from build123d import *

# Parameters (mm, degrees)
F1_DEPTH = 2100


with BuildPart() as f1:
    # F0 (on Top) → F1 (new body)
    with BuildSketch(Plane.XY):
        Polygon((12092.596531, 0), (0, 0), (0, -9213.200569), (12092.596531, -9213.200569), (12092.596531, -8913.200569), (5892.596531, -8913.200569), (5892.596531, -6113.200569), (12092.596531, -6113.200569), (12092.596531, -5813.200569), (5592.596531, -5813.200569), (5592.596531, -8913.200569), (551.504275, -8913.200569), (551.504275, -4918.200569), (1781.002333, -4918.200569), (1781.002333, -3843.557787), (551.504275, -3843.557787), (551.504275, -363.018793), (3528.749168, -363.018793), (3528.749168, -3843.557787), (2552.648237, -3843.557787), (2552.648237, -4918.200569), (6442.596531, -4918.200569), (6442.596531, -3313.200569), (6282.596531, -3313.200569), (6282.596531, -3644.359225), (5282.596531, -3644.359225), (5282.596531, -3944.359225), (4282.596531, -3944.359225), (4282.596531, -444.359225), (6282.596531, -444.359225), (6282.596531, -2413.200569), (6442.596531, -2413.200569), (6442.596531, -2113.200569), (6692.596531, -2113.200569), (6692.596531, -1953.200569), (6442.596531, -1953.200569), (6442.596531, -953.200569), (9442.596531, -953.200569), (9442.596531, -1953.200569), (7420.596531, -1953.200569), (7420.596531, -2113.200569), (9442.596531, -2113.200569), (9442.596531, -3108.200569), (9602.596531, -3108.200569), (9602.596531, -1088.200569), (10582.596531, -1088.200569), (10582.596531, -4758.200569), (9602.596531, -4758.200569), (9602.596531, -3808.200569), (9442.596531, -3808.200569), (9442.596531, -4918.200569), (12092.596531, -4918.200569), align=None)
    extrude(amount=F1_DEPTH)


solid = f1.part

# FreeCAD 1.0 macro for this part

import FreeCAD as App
import Part
import Sketcher
from FreeCAD import Vector
Q = App.Units.Quantity


def add_polygon(sketch, points):
    """Adds a closed chain of lines whose ends are joined by coincident constraints."""
    first, n = sketch.GeometryCount, len(points)
    for a, b in zip(points, points[1:] + points[:1]):
        sketch.addGeometry(Part.LineSegment(App.Vector(*a, 0), App.Vector(*b, 0)), False)
    for i in range(n):
        sketch.addConstraint(Sketcher.Constraint("Coincident", first + i, 2, first + (i + 1) % n, 1))

doc = App.newDocument("Part")
params = doc.addObject("Spreadsheet::Sheet", "Params")
for row, (alias, value) in enumerate([
    ("sketch1_width", "6200 mm"),
    ("sketch1_width2", "6500 mm"),
    ("sketch1_width3", "160 mm"),
    ("sketch1_width4", "1000 mm"),
    ("sketch1_width5", "250 mm"),
    ("pad1_length", "2100 mm"),
], start=1):
    params.set(f"A{row}", alias)
    params.set(f"B{row}", "=" + value)
    params.setAlias(f"B{row}", alias)

body = doc.addObject("PartDesign::Body", "Body")

sketch1 = body.newObject("Sketcher::SketchObject", "Sketch")
sketch1.AttachmentSupport = (doc.getObject("XY_Plane"), [""])
sketch1.MapMode = "FlatFace"
add_polygon(sketch1, [(12093, 0), (0, 0), (0, -9213), (12093, -9213), (12093, -8913), (5893, -8913), (5893, -6113), (12093, -6113), (12093, -5813), (5593, -5813), (5593, -8913), (552, -8913), (552, -4918), (1781, -4918), (1781, -3844), (552, -3844), (552, -363), (3529, -363), (3529, -3844), (2553, -3844), (2553, -4918), (6443, -4918), (6443, -3313), (6283, -3313), (6283, -3644), (5283, -3644), (5283, -3944), (4283, -3944), (4283, -444), (6283, -444), (6283, -2413), (6443, -2413), (6443, -2113), (6693, -2113), (6693, -1953), (6443, -1953), (6443, -953), (9443, -953), (9443, -1953), (7421, -1953), (7421, -2113), (9443, -2113), (9443, -3108), (9603, -3108), (9603, -1088), (10583, -1088), (10583, -4758), (9603, -4758), (9603, -3808), (9443, -3808), (9443, -4918), (12093, -4918)])
sketch1.addConstraint(Sketcher.Constraint("Horizontal", 0))
sketch1.addConstraint(Sketcher.Constraint("Vertical", 1))
sketch1.addConstraint(Sketcher.Constraint("Horizontal", 2))
sketch1.addConstraint(Sketcher.Constraint("Vertical", 3))
sketch1.addConstraint(Sketcher.Constraint("Horizontal", 4))
sketch1.addConstraint(Sketcher.Constraint("Vertical", 5))
sketch1.addConstraint(Sketcher.Constraint("Horizontal", 6))
sketch1.addConstraint(Sketcher.Constraint("Vertical", 7))
sketch1.addConstraint(Sketcher.Constraint("Horizontal", 8))
sketch1.addConstraint(Sketcher.Constraint("Vertical", 9))
sketch1.addConstraint(Sketcher.Constraint("Horizontal", 10))
sketch1.addConstraint(Sketcher.Constraint("Vertical", 11))
sketch1.addConstraint(Sketcher.Constraint("Horizontal", 12))
sketch1.addConstraint(Sketcher.Constraint("Vertical", 13))
sketch1.addConstraint(Sketcher.Constraint("Horizontal", 14))
sketch1.addConstraint(Sketcher.Constraint("Vertical", 15))
sketch1.addConstraint(Sketcher.Constraint("Horizontal", 16))
sketch1.addConstraint(Sketcher.Constraint("Vertical", 17))
sketch1.addConstraint(Sketcher.Constraint("Horizontal", 18))
sketch1.addConstraint(Sketcher.Constraint("Vertical", 19))
sketch1.addConstraint(Sketcher.Constraint("Horizontal", 20))
sketch1.addConstraint(Sketcher.Constraint("Vertical", 21))
sketch1.addConstraint(Sketcher.Constraint("Horizontal", 22))
sketch1.addConstraint(Sketcher.Constraint("Vertical", 23))
sketch1.addConstraint(Sketcher.Constraint("Horizontal", 24))
sketch1.addConstraint(Sketcher.Constraint("Vertical", 25))
sketch1.addConstraint(Sketcher.Constraint("Horizontal", 26))
sketch1.addConstraint(Sketcher.Constraint("Vertical", 27))
sketch1.addConstraint(Sketcher.Constraint("Horizontal", 28))
sketch1.addConstraint(Sketcher.Constraint("Vertical", 29))
sketch1.addConstraint(Sketcher.Constraint("Horizontal", 30))
sketch1.addConstraint(Sketcher.Constraint("Vertical", 31))
sketch1.addConstraint(Sketcher.Constraint("Horizontal", 32))
sketch1.addConstraint(Sketcher.Constraint("Vertical", 33))
sketch1.addConstraint(Sketcher.Constraint("Horizontal", 34))
sketch1.addConstraint(Sketcher.Constraint("Vertical", 35))
sketch1.addConstraint(Sketcher.Constraint("Horizontal", 36))
sketch1.addConstraint(Sketcher.Constraint("Vertical", 37))
sketch1.addConstraint(Sketcher.Constraint("Horizontal", 38))
sketch1.addConstraint(Sketcher.Constraint("Vertical", 39))
sketch1.addConstraint(Sketcher.Constraint("Horizontal", 40))
sketch1.addConstraint(Sketcher.Constraint("Vertical", 41))
sketch1.addConstraint(Sketcher.Constraint("Horizontal", 42))
sketch1.addConstraint(Sketcher.Constraint("Vertical", 43))
sketch1.addConstraint(Sketcher.Constraint("Horizontal", 44))
sketch1.addConstraint(Sketcher.Constraint("Vertical", 45))
sketch1.addConstraint(Sketcher.Constraint("Horizontal", 46))
sketch1.addConstraint(Sketcher.Constraint("Vertical", 47))
sketch1.addConstraint(Sketcher.Constraint("Horizontal", 48))
sketch1.addConstraint(Sketcher.Constraint("Vertical", 49))
sketch1.addConstraint(Sketcher.Constraint("Horizontal", 50))
sketch1.addConstraint(Sketcher.Constraint("Vertical", 51))
sketch1.addConstraint(Sketcher.Constraint("Coincident", 0, 2, -1, 1))
sketch1.addConstraint(Sketcher.Constraint("Horizontal", 4, 2, 9, 2))
sketch1.addConstraint(Sketcher.Constraint("Horizontal", 14, 2, 17, 2))
sketch1.addConstraint(Sketcher.Constraint("Horizontal", 12, 2, 19, 2))
sketch1.addConstraint(Sketcher.Constraint("Horizontal", 34, 2, 37, 2))
sketch1.addConstraint(Sketcher.Constraint("Horizontal", 32, 2, 39, 2))
sketch1.addConstraint(Sketcher.Constraint("Horizontal", 20, 2, 49, 2))
sketch1.addConstraint(Sketcher.Constraint("Vertical", 3, 2, 6, 2))
sketch1.addConstraint(Sketcher.Constraint("Vertical", 11, 2, 14, 2))
sketch1.addConstraint(Sketcher.Constraint("Vertical", 23, 2, 28, 2))
sketch1.addConstraint(Sketcher.Constraint("Vertical", 21, 2, 30, 2))
sketch1.addConstraint(Sketcher.Constraint("Vertical", 31, 2, 34, 2))
sketch1.addConstraint(Sketcher.Constraint("Vertical", 37, 2, 40, 2))
sketch1.addConstraint(Sketcher.Constraint("Vertical", 43, 2, 46, 2))
sketch1.addConstraint(Sketcher.Constraint("Vertical", 41, 2, 48, 2))
sketch1.addConstraint(Sketcher.Constraint("Vertical", 7, 2, 50, 2))
sketch1.addConstraint(Sketcher.Constraint("Equal", 24, 26))
sketch1.addConstraint(Sketcher.Constraint("Equal", 30, 42))
sketch1.addConstraint(Sketcher.Constraint("Equal", 3, 7))
sketch1.addConstraint(Sketcher.Constraint("Equal", 7, 25))
sketch1.addConstraint(Sketcher.Constraint("Equal", 25, 31))
sketch1.addConstraint(Sketcher.Constraint("Equal", 48, 33))
sketch1.addConstraint(Sketcher.Constraint("Equal", 26, 35))
sketch1.addConstraint(Sketcher.Constraint("DistanceX", 4, 2, 4, 1, Q("6200 mm")))
sketch1.addConstraint(Sketcher.Constraint("DistanceX", 8, 2, 8, 1, Q("6500 mm")))
sketch1.addConstraint(Sketcher.Constraint("DistanceX", 22, 2, 22, 1, Q("160 mm")))
sketch1.addConstraint(Sketcher.Constraint("DistanceX", 24, 2, 24, 1, Q("1000 mm")))
sketch1.addConstraint(Sketcher.Constraint("DistanceX", 32, 1, 32, 2, Q("250 mm")))
sketch1.addConstraint(Sketcher.Constraint("DistanceX", 36, 1, 36, 2, Q("3000 mm")))
sketch1.addConstraint(Sketcher.Constraint("DistanceX", 38, 2, 38, 1, Q("2022 mm")))
sketch1.addConstraint(Sketcher.Constraint("DistanceX", 44, 1, 44, 2, Q("980 mm")))
sketch1.addConstraint(Sketcher.Constraint("DistanceX", 50, 1, 50, 2, Q("2650 mm")))
sketch1.addConstraint(Sketcher.Constraint("DistanceY", 3, 1, 3, 2, Q("300 mm")))
sketch1.addConstraint(Sketcher.Constraint("DistanceY", 5, 1, 5, 2, Q("2800 mm")))
sketch1.addConstraint(Sketcher.Constraint("DistanceY", 11, 1, 11, 2, Q("3995 mm")))
sketch1.addConstraint(Sketcher.Constraint("DistanceY", 21, 1, 21, 2, Q("1605 mm")))
sketch1.addConstraint(Sketcher.Constraint("DistanceY", 27, 1, 27, 2, Q("3500 mm")))
sketch1.addConstraint(Sketcher.Constraint("DistanceY", 41, 2, 41, 1, Q("995 mm")))
sketch1.addConstraint(Sketcher.Constraint("DistanceY", 43, 1, 43, 2, Q("2020 mm")))
sketch1.addConstraint(Sketcher.Constraint("DistanceY", 45, 2, 45, 1, Q("3670 mm")))
sketch1.addConstraint(Sketcher.Constraint("DistanceY", 47, 1, 47, 2, Q("950 mm")))
sketch1.addConstraint(Sketcher.Constraint("DistanceY", 49, 2, 49, 1, Q("1110 mm")))
sketch1.addConstraint(Sketcher.Constraint("DistanceX", 0, 2, 0, 1, Q("12092.596531 mm")))
sketch1.addConstraint(Sketcher.Constraint("DistanceX", 12, 1, 12, 2, Q("1229.498058 mm")))
sketch1.addConstraint(Sketcher.Constraint("DistanceX", 18, 2, 18, 1, Q("976.100931 mm")))
sketch1.addConstraint(Sketcher.Constraint("DistanceY", 1, 2, 1, 1, Q("9213.200569 mm")))
sketch1.addConstraint(Sketcher.Constraint("DistanceY", 13, 1, 13, 2, Q("1074.642782 mm")))
sketch1.addConstraint(Sketcher.Constraint("DistanceX", 12, 2, 8, 2, Q("3811.594198 mm")))
sketch1.addConstraint(Sketcher.Constraint("DistanceX", 16, 1, 16, 2, Q("2977.244893 mm")))
sketch1.addConstraint(Sketcher.Constraint("DistanceY", 15, 1, 15, 2, Q("3480.538994 mm")))
sketch1.addConstraint(Sketcher.Constraint("DistanceY", 23, 2, 23, 1, Q("331.158656 mm")))
sketch1.setExpression("Constraints[127]", "Params.sketch1_width")
sketch1.setExpression("Constraints[128]", "Params.sketch1_width2")
sketch1.setExpression("Constraints[129]", "Params.sketch1_width3")
sketch1.setExpression("Constraints[130]", "Params.sketch1_width4")
sketch1.setExpression("Constraints[131]", "Params.sketch1_width5")
pad1 = body.newObject("PartDesign::Pad", "Pad")
pad1.Profile = sketch1
pad1.setExpression("Length", "Params.pad1_length")

doc.recompute()
